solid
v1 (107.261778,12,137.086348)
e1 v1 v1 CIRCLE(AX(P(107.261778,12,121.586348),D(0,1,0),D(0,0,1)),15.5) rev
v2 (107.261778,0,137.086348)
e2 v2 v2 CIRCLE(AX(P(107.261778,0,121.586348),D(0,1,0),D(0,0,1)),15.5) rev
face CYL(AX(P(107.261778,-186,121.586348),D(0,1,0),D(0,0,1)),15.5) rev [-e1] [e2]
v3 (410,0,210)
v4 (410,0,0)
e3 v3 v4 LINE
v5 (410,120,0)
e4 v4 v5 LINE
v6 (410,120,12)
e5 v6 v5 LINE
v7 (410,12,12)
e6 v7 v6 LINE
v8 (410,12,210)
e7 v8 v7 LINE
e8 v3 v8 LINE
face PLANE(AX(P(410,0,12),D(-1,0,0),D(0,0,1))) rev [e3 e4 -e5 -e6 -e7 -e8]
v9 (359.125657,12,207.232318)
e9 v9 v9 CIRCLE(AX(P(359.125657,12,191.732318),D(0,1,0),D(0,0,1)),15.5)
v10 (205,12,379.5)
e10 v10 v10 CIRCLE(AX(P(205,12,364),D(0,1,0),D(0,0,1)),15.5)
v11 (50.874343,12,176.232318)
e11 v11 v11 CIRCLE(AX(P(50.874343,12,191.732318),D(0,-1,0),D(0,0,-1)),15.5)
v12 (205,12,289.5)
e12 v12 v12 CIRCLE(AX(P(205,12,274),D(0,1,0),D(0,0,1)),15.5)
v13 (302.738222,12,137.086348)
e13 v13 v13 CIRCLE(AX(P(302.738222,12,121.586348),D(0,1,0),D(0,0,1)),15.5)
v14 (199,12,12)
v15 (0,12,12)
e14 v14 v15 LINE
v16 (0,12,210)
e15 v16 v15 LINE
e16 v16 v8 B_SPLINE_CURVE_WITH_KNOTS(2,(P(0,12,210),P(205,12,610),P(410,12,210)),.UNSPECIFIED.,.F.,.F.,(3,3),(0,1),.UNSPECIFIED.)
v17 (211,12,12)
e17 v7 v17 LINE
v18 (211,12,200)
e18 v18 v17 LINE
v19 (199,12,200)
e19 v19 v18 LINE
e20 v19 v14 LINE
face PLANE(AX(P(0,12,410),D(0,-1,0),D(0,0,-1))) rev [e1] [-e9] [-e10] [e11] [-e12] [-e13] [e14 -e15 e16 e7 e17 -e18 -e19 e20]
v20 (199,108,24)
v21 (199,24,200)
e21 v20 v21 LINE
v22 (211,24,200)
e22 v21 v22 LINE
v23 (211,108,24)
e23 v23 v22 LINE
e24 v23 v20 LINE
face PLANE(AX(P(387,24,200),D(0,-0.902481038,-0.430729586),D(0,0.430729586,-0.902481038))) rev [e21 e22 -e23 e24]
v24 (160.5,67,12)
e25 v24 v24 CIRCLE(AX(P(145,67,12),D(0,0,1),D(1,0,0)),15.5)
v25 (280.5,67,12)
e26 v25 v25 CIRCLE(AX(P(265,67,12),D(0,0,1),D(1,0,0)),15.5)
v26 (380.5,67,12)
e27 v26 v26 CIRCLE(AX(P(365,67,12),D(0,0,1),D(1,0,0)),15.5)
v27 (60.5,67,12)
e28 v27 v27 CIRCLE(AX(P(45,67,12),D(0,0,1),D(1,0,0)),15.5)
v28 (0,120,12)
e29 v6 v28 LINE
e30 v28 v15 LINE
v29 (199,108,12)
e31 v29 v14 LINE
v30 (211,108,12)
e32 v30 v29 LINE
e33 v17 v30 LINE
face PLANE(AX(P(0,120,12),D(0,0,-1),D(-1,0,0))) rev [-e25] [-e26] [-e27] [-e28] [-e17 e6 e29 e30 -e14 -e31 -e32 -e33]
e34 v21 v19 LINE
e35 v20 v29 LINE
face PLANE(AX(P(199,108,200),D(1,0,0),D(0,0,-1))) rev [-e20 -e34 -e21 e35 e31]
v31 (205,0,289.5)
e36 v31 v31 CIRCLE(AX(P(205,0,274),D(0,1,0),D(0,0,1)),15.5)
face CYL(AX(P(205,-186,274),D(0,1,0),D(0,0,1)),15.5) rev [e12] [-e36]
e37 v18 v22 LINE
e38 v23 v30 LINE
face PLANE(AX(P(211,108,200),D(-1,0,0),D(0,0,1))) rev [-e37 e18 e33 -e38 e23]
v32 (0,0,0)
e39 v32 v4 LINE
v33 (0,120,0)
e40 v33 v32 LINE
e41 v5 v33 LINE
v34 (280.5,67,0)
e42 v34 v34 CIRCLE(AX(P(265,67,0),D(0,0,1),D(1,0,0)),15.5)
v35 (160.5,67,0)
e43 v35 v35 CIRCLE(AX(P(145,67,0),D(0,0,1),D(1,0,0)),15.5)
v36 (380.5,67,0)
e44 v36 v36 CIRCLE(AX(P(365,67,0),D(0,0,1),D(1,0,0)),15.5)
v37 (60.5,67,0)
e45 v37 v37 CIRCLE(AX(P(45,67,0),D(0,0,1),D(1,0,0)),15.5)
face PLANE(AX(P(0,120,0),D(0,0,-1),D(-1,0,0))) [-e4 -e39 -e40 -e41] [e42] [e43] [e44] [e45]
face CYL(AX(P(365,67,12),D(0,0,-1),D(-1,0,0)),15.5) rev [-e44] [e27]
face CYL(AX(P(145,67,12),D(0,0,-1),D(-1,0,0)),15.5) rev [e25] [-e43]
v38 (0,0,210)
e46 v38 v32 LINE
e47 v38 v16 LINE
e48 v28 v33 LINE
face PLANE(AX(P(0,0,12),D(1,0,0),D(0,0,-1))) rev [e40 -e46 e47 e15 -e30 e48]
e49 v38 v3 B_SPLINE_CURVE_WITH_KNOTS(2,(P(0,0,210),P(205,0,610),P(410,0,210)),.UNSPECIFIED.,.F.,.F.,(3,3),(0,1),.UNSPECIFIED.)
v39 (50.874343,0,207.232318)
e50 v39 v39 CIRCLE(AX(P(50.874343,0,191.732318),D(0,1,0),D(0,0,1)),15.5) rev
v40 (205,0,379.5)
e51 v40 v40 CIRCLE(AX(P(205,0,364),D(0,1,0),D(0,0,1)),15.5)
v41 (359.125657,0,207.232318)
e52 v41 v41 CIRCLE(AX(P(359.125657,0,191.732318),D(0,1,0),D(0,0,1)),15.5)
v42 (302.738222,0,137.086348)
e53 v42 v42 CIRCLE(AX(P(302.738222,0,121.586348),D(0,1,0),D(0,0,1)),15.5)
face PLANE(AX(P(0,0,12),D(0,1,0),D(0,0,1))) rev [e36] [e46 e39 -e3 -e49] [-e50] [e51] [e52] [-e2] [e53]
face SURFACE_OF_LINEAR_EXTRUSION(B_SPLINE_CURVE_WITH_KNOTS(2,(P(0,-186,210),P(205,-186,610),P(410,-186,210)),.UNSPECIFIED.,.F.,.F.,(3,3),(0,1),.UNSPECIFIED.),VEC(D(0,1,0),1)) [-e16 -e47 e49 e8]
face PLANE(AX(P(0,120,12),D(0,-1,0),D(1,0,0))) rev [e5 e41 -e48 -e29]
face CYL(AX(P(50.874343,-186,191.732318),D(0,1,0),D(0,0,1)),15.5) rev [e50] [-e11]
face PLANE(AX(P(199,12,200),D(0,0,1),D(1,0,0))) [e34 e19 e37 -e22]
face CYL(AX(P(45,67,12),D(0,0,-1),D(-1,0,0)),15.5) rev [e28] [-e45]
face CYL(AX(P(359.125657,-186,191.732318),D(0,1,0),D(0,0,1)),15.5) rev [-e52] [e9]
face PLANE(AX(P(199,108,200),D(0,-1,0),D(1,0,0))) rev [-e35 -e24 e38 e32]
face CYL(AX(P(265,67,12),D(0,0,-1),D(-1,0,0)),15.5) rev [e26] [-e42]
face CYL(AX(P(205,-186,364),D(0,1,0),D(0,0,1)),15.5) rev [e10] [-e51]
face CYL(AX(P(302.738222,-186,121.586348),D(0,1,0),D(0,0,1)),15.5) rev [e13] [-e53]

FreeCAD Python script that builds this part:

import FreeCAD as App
import Part
import Sketcher
from FreeCAD import Vector
Q = App.Units.Quantity


def add_polygon(sketch, points):
    """Adds a closed chain of lines whose ends are joined by coincident constraints."""
    first, n = sketch.GeometryCount, len(points)
    for a, b in zip(points, points[1:] + points[:1]):
        sketch.addGeometry(Part.LineSegment(App.Vector(*a, 0), App.Vector(*b, 0)), False)
    for i in range(n):
        sketch.addConstraint(Sketcher.Constraint("Coincident", first + i, 2, first + (i + 1) % n, 1))

doc = App.newDocument("Part")
body = doc.addObject("PartDesign::Body", "Body")

sketch1 = body.newObject("Sketcher::SketchObject", "Sketch")
sketch1.AttachmentSupport = (doc.getObject("XY_Plane"), [""])
sketch1.MapMode = "FlatFace"
add_polygon(sketch1, [(0, 120), (0, 0), (410, 0), (410, 120)])
sketch1.addGeometry(Part.Circle(Vector(45, 67, 0), Vector(0, 0, 1), 15.5), False)
sketch1.addGeometry(Part.Circle(Vector(145, 67, 0), Vector(0, 0, 1), 15.5), False)
sketch1.addGeometry(Part.Circle(Vector(265, 67, 0), Vector(0, 0, 1), 15.5), False)
sketch1.addGeometry(Part.Circle(Vector(365, 67, 0), Vector(0, 0, 1), 15.5), False)
sketch1.addConstraint([
    Sketcher.Constraint("Vertical", 0),
    Sketcher.Constraint("Horizontal", 1),
    Sketcher.Constraint("Vertical", 2),
    Sketcher.Constraint("Horizontal", 3),
    Sketcher.Constraint("Coincident", 0, 2, -1, 1),
    Sketcher.Constraint("Equal", 4, 5),
    Sketcher.Constraint("Equal", 5, 6),
    Sketcher.Constraint("Equal", 6, 7),
    Sketcher.Constraint("Horizontal", 4, 3, 5, 3),
    Sketcher.Constraint("Horizontal", 5, 3, 6, 3),
    Sketcher.Constraint("Horizontal", 6, 3, 7, 3),
    Sketcher.Constraint("Diameter", 4, Q("31 mm")),
    Sketcher.Constraint("DistanceX", 1, 1, 1, 2, Q("410 mm")),
    Sketcher.Constraint("DistanceY", 0, 2, 0, 1, Q("120 mm")),
    Sketcher.Constraint("DistanceX", -1, 1, 4, 3, Q("45 mm")),
    Sketcher.Constraint("DistanceY", -1, 1, 4, 3, Q("67 mm")),
    Sketcher.Constraint("DistanceX", -1, 1, 5, 3, Q("145 mm")),
    Sketcher.Constraint("DistanceX", -1, 1, 6, 3, Q("265 mm")),
    Sketcher.Constraint("DistanceX", -1, 1, 7, 3, Q("365 mm")),
])
pad1 = body.newObject("PartDesign::Pad", "Pad")
pad1.Profile = sketch1
pad1.Length = 12

sketch2 = body.newObject("Sketcher::SketchObject", "Sketch001")
sketch2.AttachmentSupport = (doc.getObject("XY_Plane"), [""])
sketch2.MapMode = "FlatFace"
sketch2.AttachmentOffset = App.Placement(Vector(0, 0, 12), App.Rotation())
add_polygon(sketch2, [(0, 12), (0, 0), (410, 0), (410, 12)])
sketch2.addConstraint([
    Sketcher.Constraint("Vertical", 0),
    Sketcher.Constraint("Horizontal", 1),
    Sketcher.Constraint("Vertical", 2),
    Sketcher.Constraint("Horizontal", 3),
    Sketcher.Constraint("Coincident", 0, 2, -1, 1),
    Sketcher.Constraint("DistanceX", 1, 1, 1, 2, Q("410 mm")),
    Sketcher.Constraint("DistanceY", 0, 2, 0, 1, Q("12 mm")),
])
pad2 = body.newObject("PartDesign::Pad", "Pad001")
pad2.Profile = sketch2
pad2.Length = 398

sketch3 = body.newObject("Sketcher::SketchObject", "Sketch002")
sketch3.AttachmentSupport = (doc.getObject("XZ_Plane"), [""])
sketch3.MapMode = "FlatFace"
sketch3.AttachmentOffset = App.Placement(Vector(0, 0, -12), App.Rotation())
sketch3.addGeometry([
    Part.BSplineCurve([Vector(205, 410, 0), Vector(307.5, 410, 0), Vector(410, 210, 0)], [3, 3], [0.5, 1], False, 2, [1, 1, 1], False),
    Part.LineSegment(Vector(205, 410, 0), Vector(410, 410, 0)),
    Part.LineSegment(Vector(410, 410, 0), Vector(410, 210, 0)),
    Part.BSplineCurve([Vector(0, 210, 0), Vector(102.5, 410, 0), Vector(205, 410, 0)], [3, 3], [0, 0.5], False, 2, [1, 1, 1], False),
    Part.LineSegment(Vector(0, 210, 0), Vector(0, 410, 0)),
    Part.LineSegment(Vector(0, 410, 0), Vector(205, 410, 0)),
    Part.Circle(Vector(107.261778, 121.586348, 0), Vector(0, 0, 1), 15.5),
    Part.Circle(Vector(205, 364, 0), Vector(0, 0, 1), 15.5),
    Part.Circle(Vector(50.874343, 191.732318, 0), Vector(0, 0, 1), 15.5),
    Part.Circle(Vector(205, 274, 0), Vector(0, 0, 1), 15.5),
    Part.Circle(Vector(359.125657, 191.732318, 0), Vector(0, 0, 1), 15.5),
    Part.Circle(Vector(302.738222, 121.586348, 0), Vector(0, 0, 1), 15.5),
], False)
sketch3.addConstraint([
    Sketcher.Constraint("Block", 0),
    Sketcher.Constraint("Block", 3),
    Sketcher.Constraint("Coincident", 0, 1, 1, 1),
    Sketcher.Constraint("Coincident", 1, 2, 2, 1),
    Sketcher.Constraint("Coincident", 2, 2, 0, 2),
    Sketcher.Constraint("Coincident", 3, 1, 4, 1),
    Sketcher.Constraint("Coincident", 4, 2, 5, 1),
    Sketcher.Constraint("Coincident", 5, 2, 3, 2),
    Sketcher.Constraint("Horizontal", 1),
    Sketcher.Constraint("Vertical", 2),
    Sketcher.Constraint("Vertical", 4),
    Sketcher.Constraint("Horizontal", 5),
    Sketcher.Constraint("Equal", 6, 7),
    Sketcher.Constraint("Equal", 7, 8),
    Sketcher.Constraint("Equal", 8, 9),
    Sketcher.Constraint("Equal", 9, 10),
    Sketcher.Constraint("Equal", 10, 11),
    Sketcher.Constraint("Horizontal", 8, 3, 10, 3),
    Sketcher.Constraint("Horizontal", 6, 3, 11, 3),
    Sketcher.Constraint("Vertical", 7, 3, 9, 3),
    Sketcher.Constraint("Vertical", 9, 3, 5, 2),
    Sketcher.Constraint("Diameter", 6, Q("31 mm")),
    Sketcher.Constraint("DistanceY", -1, 1, 7, 3, Q("364 mm")),
    Sketcher.Constraint("DistanceY", -1, 1, 9, 3, Q("274 mm")),
    Sketcher.Constraint("DistanceX", -1, 1, 6, 3, Q("107.261778 mm")),
    Sketcher.Constraint("DistanceX", -1, 1, 11, 3, Q("302.738222 mm")),
    Sketcher.Constraint("DistanceY", 6, 3, 8, 3, Q("70.14597 mm")),
    Sketcher.Constraint("DistanceX", 6, 3, 10, 3, Q("251.863879 mm")),
    Sketcher.Constraint("DistanceX", 8, 3, 11, 3, Q("251.863879 mm")),
    Sketcher.Constraint("DistanceY", -1, 1, 6, 3, Q("121.586348 mm")),
])
pocket1 = body.newObject("PartDesign::Pocket", "Pocket")
pocket1.Profile = sketch3
pocket1.Length = 198
pocket1.Reversed = True

sketch4 = body.newObject("Sketcher::SketchObject", "Sketch003")
sketch4.AttachmentSupport = (doc.getObject("XY_Plane"), [""])
sketch4.MapMode = "FlatFace"
sketch4.AttachmentOffset = App.Placement(Vector(0, 0, 12), App.Rotation())
add_polygon(sketch4, [(199, 108), (199, 12), (211, 12), (211, 108)])
sketch4.addConstraint([
    Sketcher.Constraint("Vertical", 0),
    Sketcher.Constraint("Horizontal", 1),
    Sketcher.Constraint("Vertical", 2),
    Sketcher.Constraint("Horizontal", 3),
    Sketcher.Constraint("DistanceX", 1, 1, 1, 2, Q("12 mm")),
    Sketcher.Constraint("DistanceY", 0, 2, 0, 1, Q("96 mm")),
    Sketcher.Constraint("DistanceX", -1, 1, 0, 2, Q("199 mm")),
    Sketcher.Constraint("DistanceY", -1, 1, 0, 2, Q("12 mm")),
])
pad3 = body.newObject("PartDesign::Pad", "Pad002")
pad3.Profile = sketch4
pad3.Length = 188

sketch5 = body.newObject("Sketcher::SketchObject", "Sketch004")
sketch5.AttachmentSupport = (doc.getObject("YZ_Plane"), [""])
sketch5.MapMode = "FlatFace"
sketch5.AttachmentOffset = App.Placement(Vector(0, 0, 199), App.Rotation())
add_polygon(sketch5, [(24, 200), (108, 200), (108, 24)])
sketch5.addConstraint([
    Sketcher.Constraint("Horizontal", 0),
    Sketcher.Constraint("Vertical", 1),
    Sketcher.Constraint("DistanceX", 0, 1, 0, 2, Q("84 mm")),
    Sketcher.Constraint("DistanceY", 1, 2, 1, 1, Q("176 mm")),
    Sketcher.Constraint("DistanceX", -1, 1, 0, 2, Q("108 mm")),
    Sketcher.Constraint("DistanceY", -1, 1, 0, 2, Q("200 mm")),
])
pocket2 = body.newObject("PartDesign::Pocket", "Pocket001")
pocket2.Profile = sketch5
pocket2.Length = 188
pocket2.Reversed = True

doc.recompute()
